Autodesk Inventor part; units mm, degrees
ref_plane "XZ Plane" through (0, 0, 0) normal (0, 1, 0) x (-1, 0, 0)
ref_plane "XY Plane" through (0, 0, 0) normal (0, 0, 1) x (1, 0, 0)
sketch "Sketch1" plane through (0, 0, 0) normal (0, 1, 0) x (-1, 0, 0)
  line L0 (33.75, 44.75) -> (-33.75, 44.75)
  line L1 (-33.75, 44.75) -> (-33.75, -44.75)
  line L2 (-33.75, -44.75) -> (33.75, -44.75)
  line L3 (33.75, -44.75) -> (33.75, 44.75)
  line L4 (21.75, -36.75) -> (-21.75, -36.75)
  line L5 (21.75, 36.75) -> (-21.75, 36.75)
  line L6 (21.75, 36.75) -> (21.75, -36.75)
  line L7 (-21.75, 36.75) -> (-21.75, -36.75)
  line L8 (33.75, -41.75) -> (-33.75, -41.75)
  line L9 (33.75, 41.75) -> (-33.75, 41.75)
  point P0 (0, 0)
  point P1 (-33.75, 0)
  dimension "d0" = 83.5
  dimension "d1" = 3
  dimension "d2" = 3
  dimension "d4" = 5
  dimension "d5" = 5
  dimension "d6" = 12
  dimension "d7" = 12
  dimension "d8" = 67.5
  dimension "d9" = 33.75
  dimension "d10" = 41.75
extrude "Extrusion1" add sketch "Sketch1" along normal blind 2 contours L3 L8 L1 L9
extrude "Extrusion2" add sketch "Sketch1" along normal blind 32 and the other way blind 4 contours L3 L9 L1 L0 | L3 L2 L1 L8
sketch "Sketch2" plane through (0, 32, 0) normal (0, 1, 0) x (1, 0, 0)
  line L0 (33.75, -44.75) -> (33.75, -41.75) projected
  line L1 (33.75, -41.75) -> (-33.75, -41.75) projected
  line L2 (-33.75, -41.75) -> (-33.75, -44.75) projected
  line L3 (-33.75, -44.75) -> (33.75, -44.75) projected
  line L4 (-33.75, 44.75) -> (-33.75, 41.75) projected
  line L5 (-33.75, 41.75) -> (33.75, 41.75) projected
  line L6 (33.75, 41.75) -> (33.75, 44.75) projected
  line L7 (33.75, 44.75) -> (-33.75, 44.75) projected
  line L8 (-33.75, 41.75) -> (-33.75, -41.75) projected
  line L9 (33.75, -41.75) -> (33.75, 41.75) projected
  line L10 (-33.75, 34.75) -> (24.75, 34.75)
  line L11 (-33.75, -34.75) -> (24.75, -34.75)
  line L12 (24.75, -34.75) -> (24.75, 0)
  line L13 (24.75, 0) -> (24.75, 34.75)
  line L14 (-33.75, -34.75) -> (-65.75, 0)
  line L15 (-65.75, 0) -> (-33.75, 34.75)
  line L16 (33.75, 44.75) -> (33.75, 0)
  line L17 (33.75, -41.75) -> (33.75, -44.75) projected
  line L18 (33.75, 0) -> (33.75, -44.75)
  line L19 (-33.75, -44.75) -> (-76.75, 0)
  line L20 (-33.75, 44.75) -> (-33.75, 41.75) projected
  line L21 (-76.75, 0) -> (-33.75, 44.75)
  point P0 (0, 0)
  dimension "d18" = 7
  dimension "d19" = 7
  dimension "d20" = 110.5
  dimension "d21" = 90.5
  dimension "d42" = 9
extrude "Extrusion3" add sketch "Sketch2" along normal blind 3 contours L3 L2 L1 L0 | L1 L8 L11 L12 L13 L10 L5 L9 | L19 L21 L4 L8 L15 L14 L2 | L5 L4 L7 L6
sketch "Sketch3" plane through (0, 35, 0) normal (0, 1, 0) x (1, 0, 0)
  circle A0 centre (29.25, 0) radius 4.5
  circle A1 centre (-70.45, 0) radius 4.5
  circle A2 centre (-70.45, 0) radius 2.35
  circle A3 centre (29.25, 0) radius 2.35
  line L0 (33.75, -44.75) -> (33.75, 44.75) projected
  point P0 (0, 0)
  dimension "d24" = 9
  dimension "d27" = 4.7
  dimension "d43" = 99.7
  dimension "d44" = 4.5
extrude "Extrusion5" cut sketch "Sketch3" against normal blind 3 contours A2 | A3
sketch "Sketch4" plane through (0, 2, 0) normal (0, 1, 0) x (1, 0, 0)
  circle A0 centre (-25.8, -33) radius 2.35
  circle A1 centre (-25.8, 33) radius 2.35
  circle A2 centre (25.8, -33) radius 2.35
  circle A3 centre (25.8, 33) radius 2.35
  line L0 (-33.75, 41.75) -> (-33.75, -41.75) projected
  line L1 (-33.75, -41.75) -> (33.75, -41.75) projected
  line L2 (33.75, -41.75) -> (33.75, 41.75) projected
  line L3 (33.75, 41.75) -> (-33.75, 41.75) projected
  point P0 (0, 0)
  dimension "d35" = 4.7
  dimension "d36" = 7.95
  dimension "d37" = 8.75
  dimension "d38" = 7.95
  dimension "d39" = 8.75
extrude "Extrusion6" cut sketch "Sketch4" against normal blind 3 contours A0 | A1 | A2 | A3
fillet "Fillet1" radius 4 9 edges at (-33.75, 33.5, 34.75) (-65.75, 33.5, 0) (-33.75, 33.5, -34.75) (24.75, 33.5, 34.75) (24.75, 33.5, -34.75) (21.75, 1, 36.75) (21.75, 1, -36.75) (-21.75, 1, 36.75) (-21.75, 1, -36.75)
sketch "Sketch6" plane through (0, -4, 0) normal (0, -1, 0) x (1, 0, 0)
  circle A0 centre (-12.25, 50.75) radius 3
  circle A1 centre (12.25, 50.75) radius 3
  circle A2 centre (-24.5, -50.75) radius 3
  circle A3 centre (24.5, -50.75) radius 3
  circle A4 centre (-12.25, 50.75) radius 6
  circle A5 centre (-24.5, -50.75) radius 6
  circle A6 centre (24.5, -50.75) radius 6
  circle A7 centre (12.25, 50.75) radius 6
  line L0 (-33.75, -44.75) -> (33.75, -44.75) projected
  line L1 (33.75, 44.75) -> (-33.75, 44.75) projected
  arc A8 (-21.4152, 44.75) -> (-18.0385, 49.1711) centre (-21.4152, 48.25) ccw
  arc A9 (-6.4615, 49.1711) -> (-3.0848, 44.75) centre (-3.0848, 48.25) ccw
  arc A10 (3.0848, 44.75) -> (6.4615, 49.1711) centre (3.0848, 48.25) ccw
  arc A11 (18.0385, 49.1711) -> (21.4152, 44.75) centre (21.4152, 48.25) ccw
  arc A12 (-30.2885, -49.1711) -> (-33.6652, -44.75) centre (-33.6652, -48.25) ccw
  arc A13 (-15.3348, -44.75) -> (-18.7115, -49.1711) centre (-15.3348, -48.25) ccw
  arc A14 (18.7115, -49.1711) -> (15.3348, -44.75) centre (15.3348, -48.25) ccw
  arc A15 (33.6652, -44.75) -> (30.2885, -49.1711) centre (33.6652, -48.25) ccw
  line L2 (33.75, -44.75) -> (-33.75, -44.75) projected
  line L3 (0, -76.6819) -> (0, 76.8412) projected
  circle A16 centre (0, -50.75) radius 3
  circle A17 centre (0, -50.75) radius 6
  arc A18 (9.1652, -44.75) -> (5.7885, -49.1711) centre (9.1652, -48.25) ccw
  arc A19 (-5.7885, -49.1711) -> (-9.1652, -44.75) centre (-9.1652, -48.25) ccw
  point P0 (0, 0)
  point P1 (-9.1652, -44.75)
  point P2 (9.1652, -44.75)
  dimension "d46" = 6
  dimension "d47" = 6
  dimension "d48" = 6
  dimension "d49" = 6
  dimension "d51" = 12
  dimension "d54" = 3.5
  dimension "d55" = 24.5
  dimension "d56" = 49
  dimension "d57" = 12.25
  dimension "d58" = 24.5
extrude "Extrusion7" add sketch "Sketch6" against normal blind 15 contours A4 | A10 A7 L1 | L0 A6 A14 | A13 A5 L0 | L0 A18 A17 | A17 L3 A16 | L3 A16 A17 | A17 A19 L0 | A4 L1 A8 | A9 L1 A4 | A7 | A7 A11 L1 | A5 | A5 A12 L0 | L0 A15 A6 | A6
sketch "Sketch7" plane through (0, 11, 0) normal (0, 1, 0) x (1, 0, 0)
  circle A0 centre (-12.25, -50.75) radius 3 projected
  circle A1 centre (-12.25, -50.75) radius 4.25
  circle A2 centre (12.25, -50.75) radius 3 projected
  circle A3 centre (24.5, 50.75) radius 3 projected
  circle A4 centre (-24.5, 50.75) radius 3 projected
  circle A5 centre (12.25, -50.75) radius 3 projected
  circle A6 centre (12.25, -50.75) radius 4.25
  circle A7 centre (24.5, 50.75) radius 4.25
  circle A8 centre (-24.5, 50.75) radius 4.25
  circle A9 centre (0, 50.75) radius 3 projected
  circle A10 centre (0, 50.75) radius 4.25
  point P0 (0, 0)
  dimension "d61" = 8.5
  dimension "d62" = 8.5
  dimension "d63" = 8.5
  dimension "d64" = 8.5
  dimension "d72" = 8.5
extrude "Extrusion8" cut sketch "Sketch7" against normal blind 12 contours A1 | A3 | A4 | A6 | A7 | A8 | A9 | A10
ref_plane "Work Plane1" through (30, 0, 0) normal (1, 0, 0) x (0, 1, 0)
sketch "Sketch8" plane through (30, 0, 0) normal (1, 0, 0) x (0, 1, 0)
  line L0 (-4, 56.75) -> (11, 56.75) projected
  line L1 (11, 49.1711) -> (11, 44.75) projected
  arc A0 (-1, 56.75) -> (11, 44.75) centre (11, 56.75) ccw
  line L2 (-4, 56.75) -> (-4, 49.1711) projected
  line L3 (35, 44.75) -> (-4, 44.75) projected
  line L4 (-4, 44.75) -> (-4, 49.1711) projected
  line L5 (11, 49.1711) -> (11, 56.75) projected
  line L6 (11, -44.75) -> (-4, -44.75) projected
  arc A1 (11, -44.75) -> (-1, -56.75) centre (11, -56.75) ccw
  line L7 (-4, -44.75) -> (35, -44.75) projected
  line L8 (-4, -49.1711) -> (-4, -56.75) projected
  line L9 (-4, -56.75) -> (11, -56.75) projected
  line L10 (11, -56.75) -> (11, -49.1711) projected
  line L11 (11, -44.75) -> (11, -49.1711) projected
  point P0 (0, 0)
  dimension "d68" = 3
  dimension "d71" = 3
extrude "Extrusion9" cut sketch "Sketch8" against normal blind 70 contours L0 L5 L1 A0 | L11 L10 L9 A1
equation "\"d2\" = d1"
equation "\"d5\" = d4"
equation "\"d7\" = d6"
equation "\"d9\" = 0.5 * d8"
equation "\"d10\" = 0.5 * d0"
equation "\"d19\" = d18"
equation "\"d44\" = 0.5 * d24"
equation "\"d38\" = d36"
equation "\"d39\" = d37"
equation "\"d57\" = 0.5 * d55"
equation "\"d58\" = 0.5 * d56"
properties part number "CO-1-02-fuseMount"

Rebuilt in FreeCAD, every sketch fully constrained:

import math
import FreeCAD as App
import Part
import Sketcher
from FreeCAD import Vector


def edges_at(feature, points):
    """Names of the edges that pass closest to the given points."""
    edges = feature.Shape.Edges
    near = lambda p: min(range(len(edges)), key=lambda i: edges[i].distToShape(Part.Vertex(*p))[0])
    return sorted({f"Edge{near(p) + 1}" for p in points})

doc = App.newDocument("Part")
body = doc.addObject("PartDesign::Body", "Body")

sketch1 = doc.addObject("Sketcher::SketchObject", "Sketch")
body.addObject(sketch1)
sketch1.AttachmentSupport = (doc.XZ_Plane, [""])
sketch1.MapMode = "FlatFace"
sketch1.addGeometry(Part.LineSegment(Vector(-34, -42, 0), Vector(-34, 42, 0)), False)
sketch1.addGeometry(Part.LineSegment(Vector(-34, 42, 0), Vector(34, 42, 0)), False)
sketch1.addGeometry(Part.LineSegment(Vector(34, 42, 0), Vector(34, -42, 0)), False)
sketch1.addGeometry(Part.LineSegment(Vector(34, -42, 0), Vector(-34, -42, 0)), False)
sketch1.addGeometry(Part.LineSegment(Vector(-22, 37, 0), Vector(-22, -37, 0)), False)
sketch1.addGeometry(Part.LineSegment(Vector(-22, -37, 0), Vector(22, -37, 0)), False)
sketch1.addGeometry(Part.LineSegment(Vector(22, -37, 0), Vector(22, 37, 0)), False)
sketch1.addGeometry(Part.LineSegment(Vector(22, 37, 0), Vector(-22, 37, 0)), False)
sketch1.addConstraint(Sketcher.Constraint("Coincident", 0, 2, 1, 1))
sketch1.addConstraint(Sketcher.Constraint("Coincident", 1, 2, 2, 1))
sketch1.addConstraint(Sketcher.Constraint("Coincident", 2, 2, 3, 1))
sketch1.addConstraint(Sketcher.Constraint("Coincident", 3, 2, 0, 1))
sketch1.addConstraint(Sketcher.Constraint("Coincident", 4, 2, 5, 1))
sketch1.addConstraint(Sketcher.Constraint("Coincident", 5, 2, 6, 1))
sketch1.addConstraint(Sketcher.Constraint("Coincident", 6, 2, 7, 1))
sketch1.addConstraint(Sketcher.Constraint("Coincident", 7, 2, 4, 1))
sketch1.addConstraint(Sketcher.Constraint("Vertical", 0))
sketch1.addConstraint(Sketcher.Constraint("Horizontal", 1))
sketch1.addConstraint(Sketcher.Constraint("Vertical", 2))
sketch1.addConstraint(Sketcher.Constraint("Horizontal", 3))
sketch1.addConstraint(Sketcher.Constraint("Vertical", 4))
sketch1.addConstraint(Sketcher.Constraint("Horizontal", 5))
sketch1.addConstraint(Sketcher.Constraint("Vertical", 6))
sketch1.addConstraint(Sketcher.Constraint("Horizontal", 7))
sketch1.addConstraint(Sketcher.Constraint("Symmetric", 0, 2, 2, 2, -1, 1))
sketch1.addConstraint(Sketcher.Constraint("Symmetric", 4, 2, 6, 2, -1, 1))
sketch1.addConstraint(Sketcher.Constraint("DistanceX", 1, 1, 1, 2, 67.5))
sketch1.addConstraint(Sketcher.Constraint("DistanceY", 0, 1, 0, 2, 83.5))
sketch1.addConstraint(Sketcher.Constraint("DistanceX", 3, 2, 4, 2, 12.0))
sketch1.addConstraint(Sketcher.Constraint("DistanceY", 3, 2, 4, 2, 5.0))
pad1 = doc.addObject("PartDesign::Pad", "Pad")
body.addObject(pad1)
pad1.Profile = sketch1
pad1.Length = 2
pad1.Reversed = True

sketch2 = doc.addObject("Sketcher::SketchObject", "Sketch001")
body.addObject(sketch2)
sketch2.AttachmentSupport = (doc.XZ_Plane, [""])
sketch2.MapMode = "FlatFace"
sketch2.addGeometry(Part.LineSegment(Vector(-33.8, 41.8, 0), Vector(-33.8, 44.8, 0)), False)
sketch2.addGeometry(Part.LineSegment(Vector(-33.8, 44.8, 0), Vector(33.8, 44.8, 0)), False)
sketch2.addGeometry(Part.LineSegment(Vector(33.8, 44.8, 0), Vector(33.8, 41.8, 0)), False)
sketch2.addGeometry(Part.LineSegment(Vector(33.8, 41.8, 0), Vector(-33.8, 41.8, 0)), False)
sketch2.addGeometry(Part.LineSegment(Vector(-33.8, -44.8, 0), Vector(-33.8, -41.8, 0)), False)
sketch2.addGeometry(Part.LineSegment(Vector(-33.8, -41.8, 0), Vector(33.8, -41.8, 0)), False)
sketch2.addGeometry(Part.LineSegment(Vector(33.8, -41.8, 0), Vector(33.8, -44.8, 0)), False)
sketch2.addGeometry(Part.LineSegment(Vector(33.8, -44.8, 0), Vector(-33.8, -44.8, 0)), False)
sketch2.addConstraint(Sketcher.Constraint("Coincident", 0, 2, 1, 1))
sketch2.addConstraint(Sketcher.Constraint("Coincident", 1, 2, 2, 1))
sketch2.addConstraint(Sketcher.Constraint("Coincident", 2, 2, 3, 1))
sketch2.addConstraint(Sketcher.Constraint("Coincident", 3, 2, 0, 1))
sketch2.addConstraint(Sketcher.Constraint("Coincident", 4, 2, 5, 1))
sketch2.addConstraint(Sketcher.Constraint("Coincident", 5, 2, 6, 1))
sketch2.addConstraint(Sketcher.Constraint("Coincident", 6, 2, 7, 1))
sketch2.addConstraint(Sketcher.Constraint("Coincident", 7, 2, 4, 1))
sketch2.addConstraint(Sketcher.Constraint("Vertical", 0))
sketch2.addConstraint(Sketcher.Constraint("Horizontal", 1))
sketch2.addConstraint(Sketcher.Constraint("Vertical", 2))
sketch2.addConstraint(Sketcher.Constraint("Horizontal", 3))
sketch2.addConstraint(Sketcher.Constraint("Vertical", 4))
sketch2.addConstraint(Sketcher.Constraint("Horizontal", 5))
sketch2.addConstraint(Sketcher.Constraint("Vertical", 6))
sketch2.addConstraint(Sketcher.Constraint("Horizontal", 7))
sketch2.addConstraint(Sketcher.Constraint("Symmetric", 2, 2, 4, 2, -1, 1))
sketch2.addConstraint(Sketcher.Constraint("Symmetric", 0, 2, 6, 2, -1, 1))
sketch2.addConstraint(Sketcher.Constraint("Vertical", 3, 2, 4, 2))
sketch2.addConstraint(Sketcher.Constraint("DistanceY", 0, 1, 0, 2, 3.0))
sketch2.addConstraint(Sketcher.Constraint("DistanceX", 1, 1, 1, 2, 67.5))
sketch2.addConstraint(Sketcher.Constraint("DistanceY", 4, 2, 3, 2, 83.5))
pad2 = doc.addObject("PartDesign::Pad", "Pad001")
body.addObject(pad2)
pad2.Profile = sketch2
pad2.Type = "TwoLengths"
pad2.Length = 32
pad2.Length2 = 4
pad2.Reversed = True

sketch3 = doc.addObject("Sketcher::SketchObject", "Sketch002")
body.addObject(sketch3)
sketch3.AttachmentSupport = (doc.XZ_Plane, [""])
sketch3.MapMode = "FlatFace"
sketch3.AttachmentOffset = App.Placement(Vector(0, 0, -32), App.Rotation())
sketch3.addGeometry(Part.LineSegment(Vector(-34, 45, 0), Vector(34, 45, 0)), False)
sketch3.addGeometry(Part.LineSegment(Vector(34, 45, 0), Vector(34, -45, 0)), False)
sketch3.addGeometry(Part.LineSegment(Vector(34, -45, 0), Vector(-34, -45, 0)), False)
sketch3.addGeometry(Part.LineSegment(Vector(-34, -45, 0), Vector(-77, 0, 0)), False)
sketch3.addGeometry(Part.LineSegment(Vector(-77, 0, 0), Vector(-34, 45, 0)), False)
sketch3.addGeometry(Part.LineSegment(Vector(-66, 0, 0), Vector(-34, -35, 0)), False)
sketch3.addGeometry(Part.LineSegment(Vector(-34, -35, 0), Vector(25, -35, 0)), False)
sketch3.addGeometry(Part.LineSegment(Vector(25, -35, 0), Vector(25, 35, 0)), False)
sketch3.addGeometry(Part.LineSegment(Vector(25, 35, 0), Vector(-34, 35, 0)), False)
sketch3.addGeometry(Part.LineSegment(Vector(-34, 35, 0), Vector(-66, 0, 0)), False)
sketch3.addConstraint(Sketcher.Constraint("Coincident", 0, 2, 1, 1))
sketch3.addConstraint(Sketcher.Constraint("Coincident", 1, 2, 2, 1))
sketch3.addConstraint(Sketcher.Constraint("Coincident", 2, 2, 3, 1))
sketch3.addConstraint(Sketcher.Constraint("Coincident", 3, 2, 4, 1))
sketch3.addConstraint(Sketcher.Constraint("Coincident", 4, 2, 0, 1))
sketch3.addConstraint(Sketcher.Constraint("Coincident", 5, 2, 6, 1))
sketch3.addConstraint(Sketcher.Constraint("Coincident", 6, 2, 7, 1))
sketch3.addConstraint(Sketcher.Constraint("Coincident", 7, 2, 8, 1))
sketch3.addConstraint(Sketcher.Constraint("Coincident", 8, 2, 9, 1))
sketch3.addConstraint(Sketcher.Constraint("Coincident", 9, 2, 5, 1))
sketch3.addConstraint(Sketcher.Constraint("Horizontal", 0))
sketch3.addConstraint(Sketcher.Constraint("Vertical", 1))
sketch3.addConstraint(Sketcher.Constraint("Horizontal", 2))
sketch3.addConstraint(Sketcher.Constraint("Horizontal", 6))
sketch3.addConstraint(Sketcher.Constraint("Vertical", 7))
sketch3.addConstraint(Sketcher.Constraint("Horizontal", 8))
sketch3.addConstraint(Sketcher.Constraint("Symmetric", 0, 2, 2, 2, -1, 1))
sketch3.addConstraint(Sketcher.Constraint("Symmetric", 5, 2, 8, 2, -1))
sketch3.addConstraint(Sketcher.Constraint("PointOnObject", 3, 2, -1))
sketch3.addConstraint(Sketcher.Constraint("PointOnObject", 9, 2, -1))
sketch3.addConstraint(Sketcher.Constraint("Vertical", 2, 2, 4, 2))
sketch3.addConstraint(Sketcher.Constraint("Vertical", 4, 2, 5, 2))
sketch3.addConstraint(Sketcher.Constraint("DistanceX", 6, 2, 1, 2, 9.0))
sketch3.addConstraint(Sketcher.Constraint("DistanceX", 3, 2, 0, 2, 110.5))
sketch3.addConstraint(Sketcher.Constraint("DistanceX", 0, 1, 0, 2, 67.5))
sketch3.addConstraint(Sketcher.Constraint("DistanceY", 1, 2, 1, 1, 89.5))
sketch3.addConstraint(Sketcher.Constraint("DistanceY", 7, 1, 7, 2, 69.5))
sketch3.addConstraint(Sketcher.Constraint("DistanceX", 3, 2, 9, 2, 11.0))
pad3 = doc.addObject("PartDesign::Pad", "Pad002")
body.addObject(pad3)
pad3.Profile = sketch3
pad3.Length = 3
pad3.Reversed = True

sketch4 = doc.addObject("Sketcher::SketchObject", "Sketch003")
body.addObject(sketch4)
sketch4.AttachmentSupport = (doc.XZ_Plane, [""])
sketch4.MapMode = "FlatFace"
sketch4.AttachmentOffset = App.Placement(Vector(0, 0, -35), App.Rotation())
sketch4.addGeometry(Part.Circle(Vector(-70.5, 0, 0), Vector(0, 0, 1), 2.4), False)
sketch4.addGeometry(Part.Circle(Vector(29.2, 0, 0), Vector(0, 0, 1), 2.4), False)
sketch4.addConstraint(Sketcher.Constraint("Equal", 0, 1))
sketch4.addConstraint(Sketcher.Constraint("PointOnObject", 0, 3, -1))
sketch4.addConstraint(Sketcher.Constraint("PointOnObject", 1, 3, -1))
sketch4.addConstraint(Sketcher.Constraint("Diameter", 0, 4.7))
sketch4.addConstraint(Sketcher.Constraint("DistanceX", 0, 3, 1, 3, 99.7))
sketch4.addConstraint(Sketcher.Constraint("DistanceX", 0, 3, -1, 1, 70.45))
pocket1 = doc.addObject("PartDesign::Pocket", "Pocket")
body.addObject(pocket1)
pocket1.Profile = sketch4
pocket1.Length = 3
pocket1.Reversed = True

sketch5 = doc.addObject("Sketcher::SketchObject", "Sketch004")
body.addObject(sketch5)
sketch5.AttachmentSupport = (doc.XZ_Plane, [""])
sketch5.MapMode = "FlatFace"
sketch5.AttachmentOffset = App.Placement(Vector(0, 0, -2), App.Rotation())
sketch5.addGeometry(Part.Circle(Vector(-25.8, 33, 0), Vector(0, 0, 1), 2.4), False)
sketch5.addGeometry(Part.Circle(Vector(-25.8, -33, 0), Vector(0, 0, 1), 2.4), False)
sketch5.addGeometry(Part.Circle(Vector(25.8, 33, 0), Vector(0, 0, 1), 2.4), False)
sketch5.addGeometry(Part.Circle(Vector(25.8, -33, 0), Vector(0, 0, 1), 2.4), False)
sketch5.addConstraint(Sketcher.Constraint("Equal", 0, 1))
sketch5.addConstraint(Sketcher.Constraint("Equal", 1, 2))
sketch5.addConstraint(Sketcher.Constraint("Equal", 2, 3))
sketch5.addConstraint(Sketcher.Constraint("Symmetric", 1, 3, 2, 3, -1, 1))
sketch5.addConstraint(Sketcher.Constraint("Symmetric", 0, 3, 3, 3, -1, 1))
sketch5.addConstraint(Sketcher.Constraint("Symmetric", 0, 3, 2, 3, -2))
sketch5.addConstraint(Sketcher.Constraint("Diameter", 0, 4.7))
sketch5.addConstraint(Sketcher.Constraint("DistanceY", -1, 1, 0, 3, 33.0))
sketch5.addConstraint(Sketcher.Constraint("DistanceX", 0, 3, -1, 1, 25.8))
pocket2 = doc.addObject("PartDesign::Pocket", "Pocket001")
body.addObject(pocket2)
pocket2.Profile = sketch5
pocket2.Length = 3
pocket2.Reversed = True
doc.recompute()

fillet = doc.addObject("PartDesign::Fillet", "Fillet")
body.addObject(fillet)
fillet.Base = (pocket2, edges_at(pocket2, [
    (-33.75, 33.5, 34.75),
    (-65.75, 33.5, 0),
    (-33.75, 33.5, -34.75),
    (24.75, 33.5, 34.75),
    (24.75, 33.5, -34.75),
    (21.75, 1, 36.75),
    (21.75, 1, -36.75),
    (-21.75, 1, 36.75),
    (-21.75, 1, -36.75),
]))
fillet.Radius = 4

sketch6 = doc.addObject("Sketcher::SketchObject", "Sketch005")
body.addObject(sketch6)
sketch6.AttachmentSupport = (doc.XZ_Plane, [""])
sketch6.MapMode = "FlatFace"
sketch6.AttachmentOffset = App.Placement(Vector(0, 0, 4), App.Rotation())
sketch6.addGeometry(Part.ArcOfCircle(Part.Circle(Vector(-12.2, 50.8, 0), Vector(0, 0, 1), 6), math.radians(-15), math.radians(195)), False)
sketch6.addGeometry(Part.ArcOfCircle(Part.Circle(Vector(-21.4, 48.2, 0), Vector(0, 0, 1), 3.5), math.radians(-90), math.radians(15)), False)
sketch6.addGeometry(Part.LineSegment(Vector(-21.4, 44.8, 0), Vector(-3.1, 44.8, 0)), False)
sketch6.addGeometry(Part.ArcOfCircle(Part.Circle(Vector(-3.1, 48.2, 0), Vector(0, 0, 1), 3.5), math.radians(165), math.radians(270)), False)
sketch6.addGeometry(Part.Circle(Vector(-12.2, 50.8, 0), Vector(0, 0, 1), 3), False)
sketch6.addGeometry(Part.ArcOfCircle(Part.Circle(Vector(3.1, 48.2, 0), Vector(0, 0, 1), 3.5), math.radians(-90), math.radians(15)), False)
sketch6.addGeometry(Part.LineSegment(Vector(3.1, 44.8, 0), Vector(21.4, 44.8, 0)), False)
sketch6.addGeometry(Part.ArcOfCircle(Part.Circle(Vector(21.4, 48.2, 0), Vector(0, 0, 1), 3.5), math.radians(165), math.radians(270)), False)
sketch6.addGeometry(Part.ArcOfCircle(Part.Circle(Vector(12.2, 50.8, 0), Vector(0, 0, 1), 6), math.radians(-15), math.radians(195)), False)
sketch6.addGeometry(Part.Circle(Vector(12.2, 50.8, 0), Vector(0, 0, 1), 3), False)
sketch6.addGeometry(Part.ArcOfCircle(Part.Circle(Vector(15.3, -48.2, 0), Vector(0, 0, 1), 3.5), math.radians(-15), math.radians(90)), False)
sketch6.addGeometry(Part.ArcOfCircle(Part.Circle(Vector(24.5, -50.8, 0), Vector(0, 0, 1), 6), math.radians(165), math.radians(375)), False)
sketch6.addGeometry(Part.ArcOfCircle(Part.Circle(Vector(33.7, -48.2, 0), Vector(0, 0, 1), 3.5), math.radians(90), math.radians(195)), False)
sketch6.addGeometry(Part.LineSegment(Vector(33.7, -44.8, 0), Vector(15.3, -44.8, 0)), False)
sketch6.addGeometry(Part.Circle(Vector(24.5, -50.8, 0), Vector(0, 0, 1), 3), False)
sketch6.addGeometry(Part.ArcOfCircle(Part.Circle(Vector(-15.3, -48.2, 0), Vector(0, 0, 1), 3.5), math.radians(90), math.radians(195)), False)
sketch6.addGeometry(Part.LineSegment(Vector(-15.3, -44.8, 0), Vector(-33.7, -44.8, 0)), False)
sketch6.addGeometry(Part.ArcOfCircle(Part.Circle(Vector(-33.7, -48.2, 0), Vector(0, 0, 1), 3.5), math.radians(-15), math.radians(90)), False)
sketch6.addGeometry(Part.ArcOfCircle(Part.Circle(Vector(-24.5, -50.8, 0), Vector(0, 0, 1), 6), math.radians(165), math.radians(375)), False)
sketch6.addGeometry(Part.Circle(Vector(-24.5, -50.8, 0), Vector(0, 0, 1), 3), False)
sketch6.addGeometry(Part.LineSegment(Vector(9.2, -44.8, 0), Vector(-9.2, -44.8, 0)), False)
sketch6.addGeometry(Part.ArcOfCircle(Part.Circle(Vector(-9.2, -48.2, 0), Vector(0, 0, 1), 3.5), math.radians(-15), math.radians(90)), False)
sketch6.addGeometry(Part.ArcOfCircle(Part.Circle(Vector(0, -50.8, 0), Vector(0, 0, 1), 6), math.radians(165), math.radians(375)), False)
sketch6.addGeometry(Part.ArcOfCircle(Part.Circle(Vector(9.2, -48.2, 0), Vector(0, 0, 1), 3.5), math.radians(90), math.radians(195)), False)
sketch6.addGeometry(Part.Circle(Vector(0, -50.8, 0), Vector(0, 0, 1), 3), False)
sketch6.addConstraint(Sketcher.Constraint("Tangent", 0, 2, 1, 2))
sketch6.addConstraint(Sketcher.Constraint("Tangent", 1, 1, 2, 1))
sketch6.addConstraint(Sketcher.Constraint("Tangent", 2, 2, 3, 2))
sketch6.addConstraint(Sketcher.Constraint("Tangent", 3, 1, 0, 1))
sketch6.addConstraint(Sketcher.Constraint("Tangent", 5, 1, 6, 1))
sketch6.addConstraint(Sketcher.Constraint("Tangent", 6, 2, 7, 2))
sketch6.addConstraint(Sketcher.Constraint("Tangent", 7, 1, 8, 1))
sketch6.addConstraint(Sketcher.Constraint("Tangent", 8, 2, 5, 2))
sketch6.addConstraint(Sketcher.Constraint("Tangent", 10, 1, 11, 1))
sketch6.addConstraint(Sketcher.Constraint("Tangent", 11, 2, 12, 2))
sketch6.addConstraint(Sketcher.Constraint("Tangent", 12, 1, 13, 1))
sketch6.addConstraint(Sketcher.Constraint("Tangent", 13, 2, 10, 2))
sketch6.addConstraint(Sketcher.Constraint("Tangent", 15, 1, 16, 1))
sketch6.addConstraint(Sketcher.Constraint("Tangent", 16, 2, 17, 2))
sketch6.addConstraint(Sketcher.Constraint("Tangent", 17, 1, 18, 1))
sketch6.addConstraint(Sketcher.Constraint("Tangent", 18, 2, 15, 2))
sketch6.addConstraint(Sketcher.Constraint("Tangent", 20, 2, 21, 2))
sketch6.addConstraint(Sketcher.Constraint("Tangent", 21, 1, 22, 1))
sketch6.addConstraint(Sketcher.Constraint("Tangent", 22, 2, 23, 2))
sketch6.addConstraint(Sketcher.Constraint("Tangent", 23, 1, 20, 1))
sketch6.addConstraint(Sketcher.Constraint("Horizontal", 2))
sketch6.addConstraint(Sketcher.Constraint("Horizontal", 6))
sketch6.addConstraint(Sketcher.Constraint("Horizontal", 13))
sketch6.addConstraint(Sketcher.Constraint("Horizontal", 16))
sketch6.addConstraint(Sketcher.Constraint("Horizontal", 20))
sketch6.addConstraint(Sketcher.Constraint("Coincident", 4, 3, 0, 3))
sketch6.addConstraint(Sketcher.Constraint("Coincident", 9, 3, 8, 3))
sketch6.addConstraint(Sketcher.Constraint("Coincident", 14, 3, 11, 3))
sketch6.addConstraint(Sketcher.Constraint("Coincident", 19, 3, 18, 3))
sketch6.addConstraint(Sketcher.Constraint("Coincident", 24, 3, 22, 3))
sketch6.addConstraint(Sketcher.Constraint("Equal", 1, 3))
sketch6.addConstraint(Sketcher.Constraint("Equal", 3, 5))
sketch6.addConstraint(Sketcher.Constraint("Equal", 5, 7))
sketch6.addConstraint(Sketcher.Constraint("Equal", 0, 8))
sketch6.addConstraint(Sketcher.Constraint("Equal", 4, 9))
sketch6.addConstraint(Sketcher.Constraint("Equal", 7, 10))
sketch6.addConstraint(Sketcher.Constraint("Equal", 8, 11))
sketch6.addConstraint(Sketcher.Constraint("Equal", 10, 12))
sketch6.addConstraint(Sketcher.Constraint("Equal", 9, 14))
sketch6.addConstraint(Sketcher.Constraint("Equal", 12, 15))
sketch6.addConstraint(Sketcher.Constraint("Equal", 15, 17))
sketch6.addConstraint(Sketcher.Constraint("Equal", 11, 18))
sketch6.addConstraint(Sketcher.Constraint("Equal", 14, 19))
sketch6.addConstraint(Sketcher.Constraint("Equal", 17, 21))
sketch6.addConstraint(Sketcher.Constraint("Equal", 18, 22))
sketch6.addConstraint(Sketcher.Constraint("Equal", 21, 23))
sketch6.addConstraint(Sketcher.Constraint("Equal", 19, 24))
sketch6.addConstraint(Sketcher.Constraint("Symmetric", 3, 3, 5, 3, -2))
sketch6.addConstraint(Sketcher.Constraint("Symmetric", 10, 3, 15, 3, -2))
sketch6.addConstraint(Sketcher.Constraint("PointOnObject", 22, 3, -2))
sketch6.addConstraint(Sketcher.Constraint("Horizontal", 4, 3, 8, 3))
sketch6.addConstraint(Sketcher.Constraint("Horizontal", 14, 3, 18, 3))
sketch6.addConstraint(Sketcher.Constraint("Horizontal", 17, 3, 21, 3))
sketch6.addConstraint(Sketcher.Constraint("Horizontal", 19, 3, 22, 3))
sketch6.addConstraint(Sketcher.Constraint("Equal", 6, 13))
sketch6.addConstraint(Sketcher.Constraint("Diameter", 4, 6.0))
sketch6.addConstraint(Sketcher.Constraint("Radius", 0, 6.0))
sketch6.addConstraint(Sketcher.Constraint("Radius", 1, 3.5))
sketch6.addConstraint(Sketcher.Constraint("DistanceX", 15, 3, 12, 3, 49.0))
sketch6.addConstraint(Sketcher.Constraint("DistanceY", 1, 1, 0, 3, 6.0))
sketch6.addConstraint(Sketcher.Constraint("DistanceX", 1, 3, 5, 3, 24.5))
sketch6.addConstraint(Sketcher.Constraint("DistanceY", 10, 3, 8, 3, 99.0))
sketch6.addConstraint(Sketcher.Constraint("DistanceY", -1, 1, 0, 3, 50.75))
pad4 = doc.addObject("PartDesign::Pad", "Pad003")
body.addObject(pad4)
pad4.Profile = sketch6
pad4.Length = 15
pad4.Reversed = True

sketch7 = doc.addObject("Sketcher::SketchObject", "Sketch006")
body.addObject(sketch7)
sketch7.AttachmentSupport = (doc.XZ_Plane, [""])
sketch7.MapMode = "FlatFace"
sketch7.AttachmentOffset = App.Placement(Vector(0, 0, -11), App.Rotation())
sketch7.addGeometry(Part.Circle(Vector(-12.2, 50.8, 0), Vector(0, 0, 1), 4.2), False)
sketch7.addGeometry(Part.Circle(Vector(-12.2, 50.8, 0), Vector(0, 0, 1), 3), False)
sketch7.addGeometry(Part.Circle(Vector(24.5, -50.8, 0), Vector(0, 0, 1), 4.2), False)
sketch7.addGeometry(Part.Circle(Vector(-24.5, -50.8, 0), Vector(0, 0, 1), 4.2), False)
sketch7.addGeometry(Part.Circle(Vector(12.2, 50.8, 0), Vector(0, 0, 1), 4.2), False)
sketch7.addGeometry(Part.Circle(Vector(12.2, 50.8, 0), Vector(0, 0, 1), 3), False)
sketch7.addGeometry(Part.Circle(Vector(0, -50.8, 0), Vector(0, 0, 1), 4.2), False)
sketch7.addConstraint(Sketcher.Constraint("Coincident", 1, 3, 0, 3))
sketch7.addConstraint(Sketcher.Constraint("Coincident", 5, 3, 4, 3))
sketch7.addConstraint(Sketcher.Constraint("Equal", 0, 2))
sketch7.addConstraint(Sketcher.Constraint("Equal", 2, 3))
sketch7.addConstraint(Sketcher.Constraint("Equal", 3, 4))
sketch7.addConstraint(Sketcher.Constraint("Equal", 1, 5))
sketch7.addConstraint(Sketcher.Constraint("Equal", 4, 6))
sketch7.addConstraint(Sketcher.Constraint("Symmetric", 2, 3, 3, 3, -2))
sketch7.addConstraint(Sketcher.Constraint("Symmetric", 0, 3, 4, 3, -2))
sketch7.addConstraint(Sketcher.Constraint("PointOnObject", 6, 3, -2))
sketch7.addConstraint(Sketcher.Constraint("Horizontal", 3, 3, 6, 3))
sketch7.addConstraint(Sketcher.Constraint("Diameter", 0, 8.5))
sketch7.addConstraint(Sketcher.Constraint("Diameter", 1, 6.0))
sketch7.addConstraint(Sketcher.Constraint("DistanceX", 3, 3, 2, 3, 49.0))
sketch7.addConstraint(Sketcher.Constraint("DistanceY", 2, 3, 0, 3, 101.5))
sketch7.addConstraint(Sketcher.Constraint("DistanceX", 0, 3, 4, 3, 24.5))
sketch7.addConstraint(Sketcher.Constraint("DistanceY", -1, 1, 0, 3, 50.75))
pocket3 = doc.addObject("PartDesign::Pocket", "Pocket002")
body.addObject(pocket3)
pocket3.Profile = sketch7
pocket3.Length = 12
pocket3.Reversed = True

sketch8 = doc.addObject("Sketcher::SketchObject", "Sketch007")
body.addObject(sketch8)
sketch8.AttachmentSupport = (doc.YZ_Plane, [""])
sketch8.MapMode = "FlatFace"
sketch8.AttachmentOffset = App.Placement(Vector(0, 0, 30), App.Rotation())
sketch8.addGeometry(Part.LineSegment(Vector(11, 57, 0), Vector(-1, 57, 0)), False)
sketch8.addGeometry(Part.ArcOfCircle(Part.Circle(Vector(11, 57, 0), Vector(0, 0, 1), 12), math.radians(180), math.radians(270)), False)
sketch8.addGeometry(Part.LineSegment(Vector(11, 45, 0), Vector(11, 57, 0)), False)
sketch8.addGeometry(Part.LineSegment(Vector(11, -57, 0), Vector(11, -45, 0)), False)
sketch8.addGeometry(Part.ArcOfCircle(Part.Circle(Vector(11, -57, 0), Vector(0, 0, 1), 12), math.radians(90), math.radians(180)), False)
sketch8.addGeometry(Part.LineSegment(Vector(-1, -57, 0), Vector(11, -57, 0)), False)
sketch8.addConstraint(Sketcher.Constraint("Coincident", 0, 2, 1, 1))
sketch8.addConstraint(Sketcher.Constraint("Coincident", 1, 2, 2, 1))
sketch8.addConstraint(Sketcher.Constraint("Coincident", 2, 2, 0, 1))
sketch8.addConstraint(Sketcher.Constraint("Coincident", 3, 2, 4, 1))
sketch8.addConstraint(Sketcher.Constraint("Coincident", 4, 2, 5, 1))
sketch8.addConstraint(Sketcher.Constraint("Coincident", 5, 2, 3, 1))
sketch8.addConstraint(Sketcher.Constraint("Horizontal", 0))
sketch8.addConstraint(Sketcher.Constraint("Vertical", 2))
sketch8.addConstraint(Sketcher.Constraint("Vertical", 3))
sketch8.addConstraint(Sketcher.Constraint("Horizontal", 5))
sketch8.addConstraint(Sketcher.Constraint("Coincident", 2, 2, 1, 3))
sketch8.addConstraint(Sketcher.Constraint("Coincident", 5, 2, 4, 3))
sketch8.addConstraint(Sketcher.Constraint("Equal", 1, 4))
sketch8.addConstraint(Sketcher.Constraint("Symmetric", 1, 3, 4, 3, -1))
sketch8.addConstraint(Sketcher.Constraint("Radius", 1, 12.0))
sketch8.addConstraint(Sketcher.Constraint("DistanceX", -1, 1, 1, 3, 11.0))
sketch8.addConstraint(Sketcher.Constraint("DistanceY", 4, 3, 1, 3, 113.5))
pocket4 = doc.addObject("PartDesign::Pocket", "Pocket003")
body.addObject(pocket4)
pocket4.Profile = sketch8
pocket4.Length = 70

doc.recompute()
